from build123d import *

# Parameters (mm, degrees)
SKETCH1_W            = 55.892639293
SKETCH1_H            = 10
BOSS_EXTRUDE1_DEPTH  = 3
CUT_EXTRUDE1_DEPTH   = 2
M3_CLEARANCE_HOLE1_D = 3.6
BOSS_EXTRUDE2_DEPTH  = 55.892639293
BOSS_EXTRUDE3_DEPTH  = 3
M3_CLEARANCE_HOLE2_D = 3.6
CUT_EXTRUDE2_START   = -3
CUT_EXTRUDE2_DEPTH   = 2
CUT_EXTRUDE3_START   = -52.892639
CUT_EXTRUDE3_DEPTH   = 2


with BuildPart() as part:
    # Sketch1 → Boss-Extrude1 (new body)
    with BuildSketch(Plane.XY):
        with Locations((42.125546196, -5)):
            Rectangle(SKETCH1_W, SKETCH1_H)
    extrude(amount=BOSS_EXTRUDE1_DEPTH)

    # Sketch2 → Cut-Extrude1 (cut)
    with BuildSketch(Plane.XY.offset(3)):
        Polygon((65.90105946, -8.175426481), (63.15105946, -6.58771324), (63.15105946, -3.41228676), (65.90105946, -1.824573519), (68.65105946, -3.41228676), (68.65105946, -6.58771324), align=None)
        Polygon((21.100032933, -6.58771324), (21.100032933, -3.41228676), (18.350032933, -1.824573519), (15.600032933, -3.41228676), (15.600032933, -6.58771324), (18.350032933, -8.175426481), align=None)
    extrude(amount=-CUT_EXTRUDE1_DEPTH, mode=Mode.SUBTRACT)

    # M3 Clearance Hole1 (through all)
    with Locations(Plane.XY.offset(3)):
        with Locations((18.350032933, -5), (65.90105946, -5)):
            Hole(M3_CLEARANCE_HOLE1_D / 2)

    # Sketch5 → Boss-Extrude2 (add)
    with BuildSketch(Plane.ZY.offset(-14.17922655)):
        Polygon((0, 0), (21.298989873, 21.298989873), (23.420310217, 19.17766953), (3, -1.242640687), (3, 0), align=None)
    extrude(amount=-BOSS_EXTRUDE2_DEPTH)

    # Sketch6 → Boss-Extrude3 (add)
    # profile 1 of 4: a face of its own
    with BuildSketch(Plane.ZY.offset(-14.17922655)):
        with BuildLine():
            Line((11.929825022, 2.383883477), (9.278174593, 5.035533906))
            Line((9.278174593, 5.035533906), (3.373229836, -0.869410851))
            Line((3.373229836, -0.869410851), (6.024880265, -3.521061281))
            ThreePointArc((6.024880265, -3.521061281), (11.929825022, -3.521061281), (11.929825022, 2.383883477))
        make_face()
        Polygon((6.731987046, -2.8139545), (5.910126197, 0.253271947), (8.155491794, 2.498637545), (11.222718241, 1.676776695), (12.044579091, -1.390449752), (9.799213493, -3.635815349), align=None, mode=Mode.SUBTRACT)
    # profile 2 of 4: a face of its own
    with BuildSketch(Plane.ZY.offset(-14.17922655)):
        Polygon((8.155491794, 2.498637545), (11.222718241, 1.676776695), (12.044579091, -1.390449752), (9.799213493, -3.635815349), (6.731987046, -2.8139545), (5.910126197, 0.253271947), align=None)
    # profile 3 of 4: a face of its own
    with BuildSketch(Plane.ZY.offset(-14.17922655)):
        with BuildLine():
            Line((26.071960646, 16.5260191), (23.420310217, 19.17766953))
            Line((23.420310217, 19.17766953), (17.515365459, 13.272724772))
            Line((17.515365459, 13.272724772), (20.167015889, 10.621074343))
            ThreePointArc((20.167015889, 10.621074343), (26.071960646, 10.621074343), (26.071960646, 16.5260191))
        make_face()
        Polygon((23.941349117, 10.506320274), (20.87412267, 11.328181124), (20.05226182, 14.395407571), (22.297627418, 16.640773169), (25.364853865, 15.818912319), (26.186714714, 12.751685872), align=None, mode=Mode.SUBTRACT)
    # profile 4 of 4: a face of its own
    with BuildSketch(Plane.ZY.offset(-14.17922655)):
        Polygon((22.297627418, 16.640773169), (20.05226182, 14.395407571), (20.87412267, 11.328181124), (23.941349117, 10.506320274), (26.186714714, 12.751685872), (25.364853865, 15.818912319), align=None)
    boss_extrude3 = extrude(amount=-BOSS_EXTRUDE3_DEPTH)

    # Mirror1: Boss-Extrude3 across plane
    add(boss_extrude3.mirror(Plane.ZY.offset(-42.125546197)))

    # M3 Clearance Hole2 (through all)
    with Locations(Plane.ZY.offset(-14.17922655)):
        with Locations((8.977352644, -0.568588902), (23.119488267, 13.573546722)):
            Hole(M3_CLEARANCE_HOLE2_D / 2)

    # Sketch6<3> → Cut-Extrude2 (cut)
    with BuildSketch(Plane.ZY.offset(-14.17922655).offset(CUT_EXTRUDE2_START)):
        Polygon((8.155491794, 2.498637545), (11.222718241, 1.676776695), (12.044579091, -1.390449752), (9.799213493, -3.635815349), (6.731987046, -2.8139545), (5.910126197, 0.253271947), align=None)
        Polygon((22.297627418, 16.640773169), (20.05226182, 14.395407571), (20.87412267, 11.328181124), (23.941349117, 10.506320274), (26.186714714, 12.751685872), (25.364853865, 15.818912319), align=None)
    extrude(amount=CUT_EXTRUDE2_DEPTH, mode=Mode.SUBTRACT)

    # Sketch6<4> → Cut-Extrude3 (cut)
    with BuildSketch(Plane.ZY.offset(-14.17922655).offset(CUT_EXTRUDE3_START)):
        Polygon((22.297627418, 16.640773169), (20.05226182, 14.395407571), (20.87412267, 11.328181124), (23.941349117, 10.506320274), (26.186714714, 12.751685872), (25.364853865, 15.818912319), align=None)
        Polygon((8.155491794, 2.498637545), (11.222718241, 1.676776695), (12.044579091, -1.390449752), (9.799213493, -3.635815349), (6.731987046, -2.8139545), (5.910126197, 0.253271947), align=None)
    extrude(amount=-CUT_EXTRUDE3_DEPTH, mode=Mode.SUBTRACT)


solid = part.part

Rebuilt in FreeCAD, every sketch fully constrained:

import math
import FreeCAD as App
import Part
import Sketcher

V = App.Vector
Q = App.Units.Quantity


def add_polygon(sketch, points):
    """Adds a closed chain of lines whose ends are joined by coincident constraints."""
    first, n = sketch.GeometryCount, len(points)
    for a, b in zip(points, points[1:] + points[:1]):
        sketch.addGeometry(Part.LineSegment(App.Vector(*a, 0), App.Vector(*b, 0)), False)
    for i in range(n):
        sketch.addConstraint(Sketcher.Constraint("Coincident", first + i, 2, first + (i + 1) % n, 1))

doc = App.newDocument("Part")
params = doc.addObject("Spreadsheet::Sheet", "Params")
for row, (alias, value) in enumerate([
    ("sketch1_height", "10 mm"),
    ("pad1_length", "3 mm"),
    ("pocket1_length", "2 mm"),
    ("sketch3_diameter", "3.6 mm"),
    ("hole_diameter", "3.6 mm"),
    ("sketch4_height", "3 mm"),
    ("sketch4_length", "3 mm"),
    ("pad2_length", "55.892639 mm"),
    ("sketch5_length", "3.75 mm"),
    ("pad3_length", "3 mm"),
    ("sketch6_diameter", "3.6 mm"),
    ("hole2_diameter", "3.6 mm"),
    ("pocket2_length", "2 mm"),
    ("pocket3_length", "2 mm"),
], start=1):
    params.set(f"A{row}", alias)
    params.set(f"B{row}", "=" + value)
    params.setAlias(f"B{row}", alias)

body = doc.addObject("PartDesign::Body", "Body")

sketch1 = body.newObject("Sketcher::SketchObject", "Sketch")
sketch1.AttachmentSupport = (doc.getObject("XY_Plane"), [""])
sketch1.MapMode = "FlatFace"
add_polygon(sketch1, [(14.179227, 0), (14.179227, -10), (70.071866, -10), (70.071866, 0)])
sketch1.addConstraint(Sketcher.Constraint("Vertical", 0))
sketch1.addConstraint(Sketcher.Constraint("Horizontal", 1))
sketch1.addConstraint(Sketcher.Constraint("Vertical", 2))
sketch1.addConstraint(Sketcher.Constraint("Horizontal", 3))
sketch1.addConstraint(Sketcher.Constraint("PointOnObject", 2, 2, -1))
sketch1.addConstraint(Sketcher.Constraint("DistanceY", 0, 2, 0, 1, 10.0))
sketch1.addConstraint(Sketcher.Constraint("DistanceX", 1, 1, 1, 2, 55.892639))
sketch1.addConstraint(Sketcher.Constraint("DistanceX", -1, 1, 0, 2, 14.179227))
sketch1.setExpression("Constraints[9]", "Params.sketch1_height")
pad1 = body.newObject("PartDesign::Pad", "Pad")
pad1.Profile = sketch1
pad1.setExpression("Length", "Params.pad1_length")

sketch2 = body.newObject("Sketcher::SketchObject", "Sketch001")
sketch2.AttachmentSupport = (doc.getObject("XY_Plane"), [""])
sketch2.MapMode = "FlatFace"
sketch2.AttachmentOffset = App.Placement(V(0, 0, 3), App.Rotation())
add_polygon(sketch2, [(63.151059, -6.587713), (65.901059, -8.175426), (68.651059, -6.587713), (68.651059, -3.412287), (65.901059, -1.824574), (63.151059, -3.412287)])
add_polygon(sketch2, [(21.100033, -6.587713), (21.100033, -3.412287), (18.350033, -1.824574), (15.600033, -3.412287), (15.600033, -6.587713), (18.350033, -8.175426)])
sketch2.addConstraint(Sketcher.Constraint("Vertical", 2))
sketch2.addConstraint(Sketcher.Constraint("Vertical", 5))
sketch2.addConstraint(Sketcher.Constraint("Vertical", 6))
sketch2.addConstraint(Sketcher.Constraint("Vertical", 9))
sketch2.addConstraint(Sketcher.Constraint("Parallel", 0, 3))
sketch2.addConstraint(Sketcher.Constraint("Parallel", 1, 4))
sketch2.addConstraint(Sketcher.Constraint("Parallel", 3, 7))
sketch2.addConstraint(Sketcher.Constraint("Parallel", 4, 8))
sketch2.addConstraint(Sketcher.Constraint("Parallel", 7, 10))
sketch2.addConstraint(Sketcher.Constraint("Parallel", 8, 11))
sketch2.addConstraint(Sketcher.Constraint("Horizontal", 2, 2, 4, 2))
sketch2.addConstraint(Sketcher.Constraint("Horizontal", 1, 2, 5, 2))
sketch2.addConstraint(Sketcher.Constraint("Horizontal", 4, 2, 6, 2))
sketch2.addConstraint(Sketcher.Constraint("Horizontal", 3, 2, 7, 2))
sketch2.addConstraint(Sketcher.Constraint("Horizontal", 6, 2, 8, 2))
sketch2.addConstraint(Sketcher.Constraint("Horizontal", 5, 2, 9, 2))
sketch2.addConstraint(Sketcher.Constraint("Horizontal", 0, 2, 10, 2))
sketch2.addConstraint(Sketcher.Constraint("Vertical", 0, 2, 3, 2))
sketch2.addConstraint(Sketcher.Constraint("Angle", 0, Q("-30 deg")))
sketch2.addConstraint(Sketcher.Constraint("DistanceX", 4, 2, 2, 2, 5.5))
sketch2.addConstraint(Sketcher.Constraint("DistanceY", 2, 1, 2, 2, 3.175426))
sketch2.addConstraint(Sketcher.Constraint("DistanceX", -1, 1, 0, 2, 65.901059))
sketch2.addConstraint(Sketcher.Constraint("DistanceY", 0, 2, -1, 1, 8.175426))
sketch2.addConstraint(Sketcher.Constraint("DistanceX", -1, 1, 6, 2, 21.100033))
pocket1 = body.newObject("PartDesign::Pocket", "Pocket")
pocket1.Profile = sketch2
pocket1.setExpression("Length", "Params.pocket1_length")

sketch3 = body.newObject("Sketcher::SketchObject", "Sketch002")
sketch3.AttachmentSupport = (doc.getObject("XY_Plane"), [""])
sketch3.MapMode = "FlatFace"
sketch3.AttachmentOffset = App.Placement(V(0, 0, 3), App.Rotation())
sketch3.addGeometry(Part.Circle(V(18.350033, -5, 0), V(0, 0, 1), 1.8), False)
sketch3.addGeometry(Part.Circle(V(65.901059, -5, 0), V(0, 0, 1), 1.8), False)
sketch3.addConstraint(Sketcher.Constraint("Equal", 0, 1))
sketch3.addConstraint(Sketcher.Constraint("Horizontal", 0, 3, 1, 3))
sketch3.addConstraint(Sketcher.Constraint("Diameter", 0, 3.6))
sketch3.addConstraint(Sketcher.Constraint("DistanceY", 0, 3, -1, 1, 5.0))
sketch3.addConstraint(Sketcher.Constraint("DistanceX", -1, 1, 1, 3, 65.901059))
sketch3.addConstraint(Sketcher.Constraint("DistanceX", -1, 1, 0, 3, 18.350033))
sketch3.setExpression("Constraints[2]", "Params.sketch3_diameter")
doc.recompute()
hole = body.newObject("PartDesign::Hole", "Hole")
hole.Profile = sketch3
hole.ThreadType = "None"
hole.setExpression("Diameter", "Params.hole_diameter")
hole.DepthType = "ThroughAll"

sketch4 = body.newObject("Sketcher::SketchObject", "Sketch003")
sketch4.AttachmentSupport = (doc.getObject("YZ_Plane"), [""])
sketch4.MapMode = "FlatFace"
sketch4.AttachmentOffset = App.Placement(V(0, 0, 14.179227), App.Rotation())
add_polygon(sketch4, [(21.29899, 21.29899), (0, 0), (0, 3), (-1.242641, 3), (19.17767, 23.42031)])
sketch4.addConstraint(Sketcher.Constraint("Vertical", 1))
sketch4.addConstraint(Sketcher.Constraint("Horizontal", 2))
sketch4.addConstraint(Sketcher.Constraint("Coincident", 0, 2, -1, 1))
sketch4.addConstraint(Sketcher.Constraint("Parallel", 0, 3))
sketch4.addConstraint(Sketcher.Constraint("Perpendicular", 3, 4))
sketch4.addConstraint(Sketcher.Constraint("DistanceY", 1, 1, 1, 2, 3.0))
sketch4.addConstraint(Sketcher.Constraint("Angle", 0, Q("-135 deg")))
sketch4.addConstraint(Sketcher.Constraint("Distance", 4, 3.0))
sketch4.addConstraint(Sketcher.Constraint("Distance", 0, 30.12132))
sketch4.setExpression("Constraints[10]", "Params.sketch4_height")
sketch4.setExpression("Constraints[12]", "Params.sketch4_length")
pad2 = body.newObject("PartDesign::Pad", "Pad001")
pad2.Profile = sketch4
pad2.setExpression("Length", "Params.pad2_length")

sketch5 = body.newObject("Sketcher::SketchObject", "Sketch004")
sketch5.AttachmentSupport = (doc.getObject("YZ_Plane"), [""])
sketch5.MapMode = "FlatFace"
sketch5.AttachmentOffset = App.Placement(V(0, 0, 14.179227), App.Rotation())
sketch5.addGeometry(Part.LineSegment(V(2.383883, 11.929825, 0), V(5.035534, 9.278175, 0)), False)
sketch5.addGeometry(Part.LineSegment(V(5.035534, 9.278175, 0), V(-0.869411, 3.37323, 0)), False)
sketch5.addGeometry(Part.LineSegment(V(-0.869411, 3.37323, 0), V(-3.521061, 6.02488, 0)), False)
sketch5.addGeometry(Part.ArcOfCircle(Part.Circle(V(-0.568589, 8.977353, 0), V(0, 0, 1), 4.175426), math.radians(45), math.radians(225)), False)
sketch5.addGeometry(Part.LineSegment(V(16.526019, 26.071961, 0), V(19.17767, 23.42031, 0)), False)
sketch5.addGeometry(Part.LineSegment(V(19.17767, 23.42031, 0), V(13.272725, 17.515365, 0)), False)
sketch5.addGeometry(Part.LineSegment(V(13.272725, 17.515365, 0), V(10.621074, 20.167016, 0)), False)
sketch5.addGeometry(Part.ArcOfCircle(Part.Circle(V(13.573547, 23.119488, 0), V(0, 0, 1), 4.175426), math.radians(45), math.radians(225)), False)
sketch5.addConstraint(Sketcher.Constraint("Coincident", 0, 2, 1, 1))
sketch5.addConstraint(Sketcher.Constraint("Coincident", 1, 2, 2, 1))
sketch5.addConstraint(Sketcher.Constraint("Tangent", 2, 2, 3, 2))
sketch5.addConstraint(Sketcher.Constraint("Tangent", 3, 1, 0, 1))
sketch5.addConstraint(Sketcher.Constraint("Coincident", 4, 2, 5, 1))
sketch5.addConstraint(Sketcher.Constraint("Coincident", 5, 2, 6, 1))
sketch5.addConstraint(Sketcher.Constraint("Tangent", 6, 2, 7, 2))
sketch5.addConstraint(Sketcher.Constraint("Tangent", 7, 1, 4, 1))
sketch5.addConstraint(Sketcher.Constraint("Equal", 3, 7))
sketch5.addConstraint(Sketcher.Constraint("Perpendicular", 0, 1))
sketch5.addConstraint(Sketcher.Constraint("Perpendicular", 1, 2))
sketch5.addConstraint(Sketcher.Constraint("Parallel", 2, 4))
sketch5.addConstraint(Sketcher.Constraint("Perpendicular", 4, 5))
sketch5.addConstraint(Sketcher.Constraint("Perpendicular", 5, 6))
sketch5.addConstraint(Sketcher.Constraint("Equal", 2, 4))
sketch5.addConstraint(Sketcher.Constraint("Angle", 0, Q("-45 deg")))
sketch5.addConstraint(Sketcher.Constraint("Distance", 0, 3.75))
sketch5.addConstraint(Sketcher.Constraint("Radius", 3, 4.175426))
sketch5.addConstraint(Sketcher.Constraint("DistanceX", 3, 3, -1, 1, 0.568589))
sketch5.addConstraint(Sketcher.Constraint("DistanceY", -1, 1, 7, 3, 23.119488))
sketch5.addConstraint(Sketcher.Constraint("DistanceY", -1, 1, 1, 2, 3.37323))
sketch5.addConstraint(Sketcher.Constraint("DistanceX", -1, 1, 4, 2, 19.17767))
sketch5.setExpression("Constraints[16]", "Params.sketch5_length")
pad3 = body.newObject("PartDesign::Pad", "Pad002")
pad3.Profile = sketch5
pad3.setExpression("Length", "Params.pad3_length")
doc.recompute()

datumplane = body.newObject("PartDesign::Plane", "DatumPlane")
datumplane.AttachmentSupport = (doc.getObject("YZ_Plane"), [""])
datumplane.MapMode = "FlatFace"
datumplane.AttachmentOffset = App.Placement(V(0, 0, 42.125546), App.Rotation())
mirrored = body.newObject("PartDesign::Mirrored", "Mirrored")
mirrored.Originals = [pad3]
mirrored.MirrorPlane = (datumplane, [""])
body.Tip = mirrored

sketch6 = body.newObject("Sketcher::SketchObject", "Sketch005")
sketch6.AttachmentSupport = (doc.getObject("YZ_Plane"), [""])
sketch6.MapMode = "FlatFace"
sketch6.AttachmentOffset = App.Placement(V(0, 0, 14.179227), App.Rotation())
sketch6.addGeometry(Part.Circle(V(-0.568589, 8.977353, 0), V(0, 0, 1), 1.8), False)
sketch6.addGeometry(Part.Circle(V(13.573547, 23.119488, 0), V(0, 0, 1), 1.8), False)
sketch6.addConstraint(Sketcher.Constraint("Equal", 0, 1))
sketch6.addConstraint(Sketcher.Constraint("Diameter", 0, 3.6))
sketch6.addConstraint(Sketcher.Constraint("DistanceX", 0, 3, -1, 1, 0.568589))
sketch6.addConstraint(Sketcher.Constraint("DistanceY", -1, 1, 1, 3, 23.119488))
sketch6.addConstraint(Sketcher.Constraint("DistanceY", -1, 1, 0, 3, 8.977353))
sketch6.addConstraint(Sketcher.Constraint("DistanceX", -1, 1, 1, 3, 13.573547))
sketch6.setExpression("Constraints[1]", "Params.sketch6_diameter")
doc.recompute()
hole2 = body.newObject("PartDesign::Hole", "Hole001")
hole2.Profile = sketch6
hole2.ThreadType = "None"
hole2.setExpression("Diameter", "Params.hole2_diameter")
hole2.DepthType = "ThroughAll"
hole2.Reversed = True

sketch7 = body.newObject("Sketcher::SketchObject", "Sketch006")
sketch7.AttachmentSupport = (doc.getObject("YZ_Plane"), [""])
sketch7.MapMode = "FlatFace"
sketch7.AttachmentOffset = App.Placement(V(0, 0, 17.179227), App.Rotation())
add_polygon(sketch7, [(1.676777, 11.222718), (2.498638, 8.155492), (0.253272, 5.910126), (-2.813954, 6.731987), (-3.635815, 9.799213), (-1.39045, 12.044579)])
add_polygon(sketch7, [(16.640773, 22.297627), (14.395408, 20.052262), (11.328181, 20.874123), (10.50632, 23.941349), (12.751686, 26.186715), (15.818912, 25.364854)])
sketch7.addConstraint(Sketcher.Constraint("Parallel", 0, 3))
sketch7.addConstraint(Sketcher.Constraint("Parallel", 1, 4))
sketch7.addConstraint(Sketcher.Constraint("Parallel", 2, 5))
sketch7.addConstraint(Sketcher.Constraint("Parallel", 4, 6))
sketch7.addConstraint(Sketcher.Constraint("Parallel", 5, 7))
sketch7.addConstraint(Sketcher.Constraint("Parallel", 3, 8))
sketch7.addConstraint(Sketcher.Constraint("Parallel", 6, 9))
sketch7.addConstraint(Sketcher.Constraint("Parallel", 7, 10))
sketch7.addConstraint(Sketcher.Constraint("Parallel", 8, 11))
sketch7.addConstraint(Sketcher.Constraint("Equal", 0, 1))
sketch7.addConstraint(Sketcher.Constraint("Equal", 1, 2))
sketch7.addConstraint(Sketcher.Constraint("Equal", 2, 3))
sketch7.addConstraint(Sketcher.Constraint("Equal", 5, 6))
sketch7.addConstraint(Sketcher.Constraint("Equal", 6, 7))
sketch7.addConstraint(Sketcher.Constraint("Equal", 7, 8))
sketch7.addConstraint(Sketcher.Constraint("Equal", 8, 9))
sketch7.addConstraint(Sketcher.Constraint("Angle", 0, Q("-75 deg")))
sketch7.addConstraint(Sketcher.Constraint("Angle", 1, Q("-135 deg")))
sketch7.addConstraint(Sketcher.Constraint("Angle", 2, Q("165 deg")))
sketch7.addConstraint(Sketcher.Constraint("DistanceY", -1, 1, 0, 2, 8.155492))
sketch7.addConstraint(Sketcher.Constraint("DistanceX", -1, 1, 1, 2, 0.253272))
sketch7.addConstraint(Sketcher.Constraint("DistanceX", 4, 2, -1, 1, 1.39045))
sketch7.addConstraint(Sketcher.Constraint("DistanceY", -1, 1, 6, 2, 20.052262))
sketch7.addConstraint(Sketcher.Constraint("DistanceX", -1, 1, 7, 2, 11.328181))
pocket2 = body.newObject("PartDesign::Pocket", "Pocket001")
pocket2.Profile = sketch7
pocket2.setExpression("Length", "Params.pocket2_length")

sketch8 = body.newObject("Sketcher::SketchObject", "Sketch007")
sketch8.AttachmentSupport = (doc.getObject("YZ_Plane"), [""])
sketch8.MapMode = "FlatFace"
sketch8.AttachmentOffset = App.Placement(V(0, 0, 67.071866), App.Rotation())
add_polygon(sketch8, [(16.640773, 22.297627), (14.395408, 20.052262), (11.328181, 20.874123), (10.50632, 23.941349), (12.751686, 26.186715), (15.818912, 25.364854)])
add_polygon(sketch8, [(1.676777, 11.222718), (2.498638, 8.155492), (0.253272, 5.910126), (-2.813954, 6.731987), (-3.635815, 9.799213), (-1.39045, 12.044579)])
sketch8.addConstraint(Sketcher.Constraint("Parallel", 0, 3))
sketch8.addConstraint(Sketcher.Constraint("Parallel", 1, 4))
sketch8.addConstraint(Sketcher.Constraint("Parallel", 2, 5))
sketch8.addConstraint(Sketcher.Constraint("Parallel", 5, 6))
sketch8.addConstraint(Sketcher.Constraint("Parallel", 3, 7))
sketch8.addConstraint(Sketcher.Constraint("Parallel", 4, 8))
sketch8.addConstraint(Sketcher.Constraint("Parallel", 6, 9))
sketch8.addConstraint(Sketcher.Constraint("Parallel", 7, 10))
sketch8.addConstraint(Sketcher.Constraint("Parallel", 8, 11))
sketch8.addConstraint(Sketcher.Constraint("Equal", 0, 1))
sketch8.addConstraint(Sketcher.Constraint("Equal", 1, 2))
sketch8.addConstraint(Sketcher.Constraint("Equal", 2, 3))
sketch8.addConstraint(Sketcher.Constraint("Equal", 5, 6))
sketch8.addConstraint(Sketcher.Constraint("Equal", 6, 7))
sketch8.addConstraint(Sketcher.Constraint("Equal", 7, 8))
sketch8.addConstraint(Sketcher.Constraint("Equal", 8, 9))
sketch8.addConstraint(Sketcher.Constraint("Angle", 0, Q("-135 deg")))
sketch8.addConstraint(Sketcher.Constraint("Angle", 1, Q("165 deg")))
sketch8.addConstraint(Sketcher.Constraint("Angle", 2, Q("105 deg")))
sketch8.addConstraint(Sketcher.Constraint("DistanceX", 7, 2, 5, 2, 16.387501))
sketch8.addConstraint(Sketcher.Constraint("DistanceY", 7, 2, 5, 2, 16.387501))
sketch8.addConstraint(Sketcher.Constraint("DistanceY", -1, 1, 0, 2, 20.052262))
sketch8.addConstraint(Sketcher.Constraint("DistanceX", -1, 1, 1, 2, 11.328181))
sketch8.addConstraint(Sketcher.Constraint("DistanceX", -1, 1, 2, 2, 10.50632))
pocket3 = body.newObject("PartDesign::Pocket", "Pocket002")
pocket3.Profile = sketch8
pocket3.setExpression("Length", "Params.pocket3_length")
pocket3.Reversed = True

doc.recompute()
